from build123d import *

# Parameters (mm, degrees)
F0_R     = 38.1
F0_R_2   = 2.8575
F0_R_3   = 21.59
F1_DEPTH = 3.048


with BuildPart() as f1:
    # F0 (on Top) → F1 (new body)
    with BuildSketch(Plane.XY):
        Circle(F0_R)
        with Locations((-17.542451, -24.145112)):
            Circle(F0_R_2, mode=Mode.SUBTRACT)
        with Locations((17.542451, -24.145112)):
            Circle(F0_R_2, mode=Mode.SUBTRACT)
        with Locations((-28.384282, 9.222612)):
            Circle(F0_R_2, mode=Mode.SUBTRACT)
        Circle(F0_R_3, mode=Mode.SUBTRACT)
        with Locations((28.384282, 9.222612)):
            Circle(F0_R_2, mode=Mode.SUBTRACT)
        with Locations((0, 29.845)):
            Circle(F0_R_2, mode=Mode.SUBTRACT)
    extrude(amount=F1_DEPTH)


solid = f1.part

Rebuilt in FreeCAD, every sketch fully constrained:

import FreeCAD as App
import Part
import Sketcher
from FreeCAD import Vector
Q = App.Units.Quantity

doc = App.newDocument("Part")
body = doc.addObject("PartDesign::Body", "Body")

# Sketch on XY plane
sketch1 = body.newObject("Sketcher::SketchObject", "Sketch")
sketch1.AttachmentSupport = (doc.getObject("XY_Plane"), [""])
sketch1.MapMode = "FlatFace"
sketch1.addGeometry(Part.Circle(Vector(0, 0, 0), Vector(0, 0, 1), 38.1), False)
sketch1.addGeometry(Part.Circle(Vector(-17.5, -24.1, 0), Vector(0, 0, 1), 2.9), False)
sketch1.addGeometry(Part.Circle(Vector(17.5, -24.1, 0), Vector(0, 0, 1), 2.9), False)
sketch1.addGeometry(Part.Circle(Vector(0, 0, 0), Vector(0, 0, 1), 21.6), False)
sketch1.addGeometry(Part.Circle(Vector(-28.4, 9.2, 0), Vector(0, 0, 1), 2.9), False)
sketch1.addGeometry(Part.Circle(Vector(28.4, 9.2, 0), Vector(0, 0, 1), 2.9), False)
sketch1.addGeometry(Part.Circle(Vector(0, 29.8, 0), Vector(0, 0, 1), 2.9), False)
sketch1.addConstraint(Sketcher.Constraint("Coincident", 0, 3, -1, 1))
sketch1.addConstraint(Sketcher.Constraint("Coincident", 3, 3, -1, 1))
sketch1.addConstraint(Sketcher.Constraint("Equal", 1, 2))
sketch1.addConstraint(Sketcher.Constraint("Equal", 2, 4))
sketch1.addConstraint(Sketcher.Constraint("Equal", 4, 5))
sketch1.addConstraint(Sketcher.Constraint("Equal", 5, 6))
sketch1.addConstraint(Sketcher.Constraint("Symmetric", 1, 3, 2, 3, -2))
sketch1.addConstraint(Sketcher.Constraint("Symmetric", 4, 3, 5, 3, -2))
sketch1.addConstraint(Sketcher.Constraint("PointOnObject", 6, 3, -2))
sketch1.addConstraint(Sketcher.Constraint("Diameter", 0, Q("3 in")))
sketch1.addConstraint(Sketcher.Constraint("Diameter", 3, Q("1.7 in")))
sketch1.addConstraint(Sketcher.Constraint("Diameter", 1, Q("0.225 in")))
sketch1.addConstraint(Sketcher.Constraint("DistanceY", -1, 1, 6, 3, Q("1.175 in")))
sketch1.addConstraint(Sketcher.Constraint("DistanceX", 1, 3, -1, 1, 17.542451))
sketch1.addConstraint(Sketcher.Constraint("DistanceX", 4, 3, -1, 1, 28.384282))
sketch1.addConstraint(Sketcher.Constraint("DistanceY", 4, 3, 6, 3, 20.622388))
sketch1.addConstraint(Sketcher.Constraint("DistanceY", 1, 3, 6, 3, 53.990112))
pad1 = body.newObject("PartDesign::Pad", "Pad")
pad1.Profile = sketch1
pad1.Length = Q("0.12 in")

doc.recompute()
